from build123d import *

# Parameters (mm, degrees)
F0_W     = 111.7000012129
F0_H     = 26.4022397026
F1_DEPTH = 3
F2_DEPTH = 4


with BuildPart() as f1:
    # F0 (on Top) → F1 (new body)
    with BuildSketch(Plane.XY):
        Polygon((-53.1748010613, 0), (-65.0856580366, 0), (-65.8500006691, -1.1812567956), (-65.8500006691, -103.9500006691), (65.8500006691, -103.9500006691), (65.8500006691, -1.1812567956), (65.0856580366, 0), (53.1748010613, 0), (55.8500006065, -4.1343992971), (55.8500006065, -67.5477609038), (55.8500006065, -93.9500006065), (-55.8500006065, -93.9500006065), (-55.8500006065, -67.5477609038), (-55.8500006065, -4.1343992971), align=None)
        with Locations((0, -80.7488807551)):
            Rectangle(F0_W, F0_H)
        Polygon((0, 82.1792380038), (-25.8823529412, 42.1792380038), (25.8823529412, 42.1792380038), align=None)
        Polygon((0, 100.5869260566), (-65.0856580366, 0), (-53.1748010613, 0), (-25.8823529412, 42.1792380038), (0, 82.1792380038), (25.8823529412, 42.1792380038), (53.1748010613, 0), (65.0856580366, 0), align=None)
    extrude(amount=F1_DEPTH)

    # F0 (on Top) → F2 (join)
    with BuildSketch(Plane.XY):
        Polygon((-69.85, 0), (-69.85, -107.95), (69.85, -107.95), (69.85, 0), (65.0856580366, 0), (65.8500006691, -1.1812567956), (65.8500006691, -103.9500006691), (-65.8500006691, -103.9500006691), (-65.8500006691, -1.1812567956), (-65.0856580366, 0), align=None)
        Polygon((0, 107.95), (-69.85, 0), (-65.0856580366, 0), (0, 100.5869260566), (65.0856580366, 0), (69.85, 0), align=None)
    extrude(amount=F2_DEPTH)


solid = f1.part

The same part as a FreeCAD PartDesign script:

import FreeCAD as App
import Part
import Sketcher
Q = App.Units.Quantity


def add_polygon(sketch, points):
    """Adds a closed chain of lines whose ends are joined by coincident constraints."""
    first, n = sketch.GeometryCount, len(points)
    for a, b in zip(points, points[1:] + points[:1]):
        sketch.addGeometry(Part.LineSegment(App.Vector(*a, 0), App.Vector(*b, 0)), False)
    for i in range(n):
        sketch.addConstraint(Sketcher.Constraint("Coincident", first + i, 2, first + (i + 1) % n, 1))

doc = App.newDocument("Part")
body = doc.addObject("PartDesign::Body", "Body")

# Sketch on XY plane
sketch1 = body.newObject("Sketcher::SketchObject", "Sketch")
sketch1.AttachmentSupport = (doc.getObject("XY_Plane"), [""])
sketch1.MapMode = "FlatFace"
add_polygon(sketch1, [(-65.085658, 0), (-65.850001, -1.181257), (-65.850001, -103.950001), (65.850001, -103.950001), (65.850001, -1.181257), (65.085658, 0), (0, 100.586926)])  # lines 0-6
add_polygon(sketch1, [(53.174801, 0), (55.850001, -4.134399), (55.850001, -67.547761), (-55.850001, -67.547761), (-55.850001, -4.134399), (-53.174801, 0), (-25.882353, 42.179238), (25.882353, 42.179238)])  # lines 7-14
sketch1.addConstraint([
    Sketcher.Constraint("Vertical", 1),
    Sketcher.Constraint("Horizontal", 2),
    Sketcher.Constraint("Vertical", 3),
    Sketcher.Constraint("Vertical", 8),
    Sketcher.Constraint("Horizontal", 9),
    Sketcher.Constraint("Vertical", 10),
    Sketcher.Constraint("Horizontal", 13),
    Sketcher.Constraint("Symmetric", 4, 2, 6, 2, -1, 1),
    Sketcher.Constraint("Symmetric", 11, 2, 14, 2, -1, 1),
    Sketcher.Constraint("Symmetric", 0, 2, 3, 2, -2),
    Sketcher.Constraint("Symmetric", 7, 2, 10, 2, -2),
    Sketcher.Constraint("PointOnObject", 4, 2, -1),
    Sketcher.Constraint("PointOnObject", 5, 2, -2),
    Sketcher.Constraint("PointOnObject", 11, 2, -1),
    Sketcher.Constraint("Parallel", 4, 5),
    Sketcher.Constraint("Parallel", 5, 7),
    Sketcher.Constraint("Parallel", 11, 12),
    Sketcher.Constraint("Parallel", 7, 14),
    Sketcher.Constraint("DistanceX", 2, 1, 2, 2, Q("131.700001 mm")),
    Sketcher.Constraint("DistanceX", 9, 2, 9, 1, Q("111.700001 mm")),
    Sketcher.Constraint("DistanceY", 1, 2, -1, 1, Q("103.950001 mm")),
    Sketcher.Constraint("DistanceY", 8, 2, 8, 1, Q("63.413362 mm")),
    Sketcher.Constraint("DistanceY", 7, 2, -1, 1, Q("4.134399 mm")),
    Sketcher.Constraint("DistanceX", 11, 2, -1, 1, Q("53.174801 mm")),
    Sketcher.Constraint("Distance", 0, Q("1.406978 mm")),
    Sketcher.Constraint("DistanceX", 13, 1, 13, 2, Q("51.764706 mm")),
])
pad1 = body.newObject("PartDesign::Pad", "Pad")
pad1.Profile = sketch1
pad1.Length = 3

# Sketch on XY plane
sketch2 = body.newObject("Sketcher::SketchObject", "Sketch001")
sketch2.AttachmentSupport = (doc.getObject("XY_Plane"), [""])
sketch2.MapMode = "FlatFace"
add_polygon(sketch2, [(-69.85, 0), (-69.85, -107.95), (69.85, -107.95), (69.85, 0), (0, 107.95)])  # lines 0-4
add_polygon(sketch2, [(65.085658, 0), (65.850001, -1.181257), (65.850001, -103.950001), (-65.850001, -103.950001), (-65.850001, -1.181257), (-65.085658, 0), (0, 100.586926)])  # lines 5-11
sketch2.addConstraint([
    Sketcher.Constraint("Vertical", 0),
    Sketcher.Constraint("Horizontal", 1),
    Sketcher.Constraint("Vertical", 2),
    Sketcher.Constraint("Vertical", 6),
    Sketcher.Constraint("Horizontal", 7),
    Sketcher.Constraint("Vertical", 8),
    Sketcher.Constraint("Symmetric", 2, 2, 4, 2, -1, 1),
    Sketcher.Constraint("Symmetric", 9, 2, 11, 2, -1, 1),
    Sketcher.Constraint("Symmetric", 5, 2, 8, 2, -2),
    Sketcher.Constraint("PointOnObject", 2, 2, -1),
    Sketcher.Constraint("PointOnObject", 3, 2, -2),
    Sketcher.Constraint("PointOnObject", 9, 2, -1),
    Sketcher.Constraint("PointOnObject", 10, 2, -2),
    Sketcher.Constraint("Parallel", 3, 5),
    Sketcher.Constraint("Parallel", 9, 10),
    Sketcher.Constraint("DistanceX", 1, 1, 1, 2, Q("139.7 mm")),
    Sketcher.Constraint("DistanceX", 7, 2, 7, 1, Q("131.700001 mm")),
    Sketcher.Constraint("DistanceY", 1, 2, 6, 2, Q("3.999999 mm")),
    Sketcher.Constraint("DistanceY", 0, 2, 0, 1, Q("107.95 mm")),
    Sketcher.Constraint("DistanceY", 0, 2, 3, 2, Q("215.9 mm")),
    Sketcher.Constraint("Distance", 5, Q("1.406978 mm")),
])
pad2 = body.newObject("PartDesign::Pad", "Pad001")
pad2.Profile = sketch2
pad2.Length = 4

doc.recompute()
